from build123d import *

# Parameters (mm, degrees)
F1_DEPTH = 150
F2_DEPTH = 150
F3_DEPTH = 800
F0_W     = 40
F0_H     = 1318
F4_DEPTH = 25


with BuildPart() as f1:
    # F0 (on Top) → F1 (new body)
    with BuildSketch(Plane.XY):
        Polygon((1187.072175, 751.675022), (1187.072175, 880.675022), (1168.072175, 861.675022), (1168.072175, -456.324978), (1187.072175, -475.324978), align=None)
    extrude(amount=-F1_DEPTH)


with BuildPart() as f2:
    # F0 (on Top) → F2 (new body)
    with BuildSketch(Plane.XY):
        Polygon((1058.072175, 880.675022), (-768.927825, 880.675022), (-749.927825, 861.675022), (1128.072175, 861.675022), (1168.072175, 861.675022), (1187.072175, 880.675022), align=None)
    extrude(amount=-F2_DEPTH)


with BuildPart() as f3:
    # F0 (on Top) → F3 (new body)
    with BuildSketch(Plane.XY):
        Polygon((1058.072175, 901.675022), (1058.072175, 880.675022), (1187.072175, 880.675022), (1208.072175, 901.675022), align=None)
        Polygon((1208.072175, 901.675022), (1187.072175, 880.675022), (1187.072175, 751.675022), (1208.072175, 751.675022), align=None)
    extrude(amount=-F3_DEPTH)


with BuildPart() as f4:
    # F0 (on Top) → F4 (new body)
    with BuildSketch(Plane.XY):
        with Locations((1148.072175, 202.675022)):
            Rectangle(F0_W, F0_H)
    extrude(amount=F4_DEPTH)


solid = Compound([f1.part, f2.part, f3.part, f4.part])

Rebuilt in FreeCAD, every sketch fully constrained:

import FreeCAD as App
import Part
import Sketcher

V = App.Vector
Q = App.Units.Quantity

doc = App.newDocument("Part")
params = doc.addObject("Spreadsheet::Sheet", "Params")
for row, (alias, value) in enumerate([
    ("sketch1_height", "1318 mm"),
    ("sketch1_height2", "1356 mm"),
    ("pad1_length", "150 mm"),
    ("sketch2_width", "1918 mm"),
    ("sketch2_width2", "1956 mm"),
    ("pad2_length", "150 mm"),
    ("sketch3_width", "129 mm"),
    ("sketch3_width2", "21 mm"),
    ("pad3_length", "800 mm"),
    ("sketch4_width", "40 mm"),
    ("sketch4_height", "1318 mm"),
    ("pad4_length", "25 mm"),
], start=1):
    params.set(f"A{row}", alias)
    params.set(f"B{row}", "=" + value)
    params.setAlias(f"B{row}", alias)

body = doc.addObject("PartDesign::Body", "Body")

sketch1 = body.newObject("Sketcher::SketchObject", "Sketch")
sketch1.AttachmentSupport = (doc.getObject("XY_Plane"), [""])
sketch1.MapMode = "FlatFace"
sketch1.addGeometry([
    Part.LineSegment(V(1187, 881, 0), V(1168, 862, 0)),
    Part.LineSegment(V(1168, 862, 0), V(1168, -456, 0)),
    Part.LineSegment(V(1168, -456, 0), V(1187, -475, 0)),
    Part.LineSegment(V(1187, -475, 0), V(1187, 881, 0)),
], False)
sketch1.addConstraint([
    Sketcher.Constraint("Coincident", 0, 2, 1, 1),
    Sketcher.Constraint("Coincident", 1, 2, 2, 1),
    Sketcher.Constraint("Coincident", 2, 2, 3, 1),
    Sketcher.Constraint("Coincident", 3, 2, 0, 1),
    Sketcher.Constraint("Vertical", 1),
    Sketcher.Constraint("Vertical", 3),
    Sketcher.Constraint("Perpendicular", 0, 2),
    Sketcher.Constraint("Equal", 0, 2),
    Sketcher.Constraint("DistanceY", 1, 2, 1, 1, Q("1318 mm")),
    Sketcher.Constraint("DistanceY", 3, 1, 3, 2, Q("1356 mm")),
    Sketcher.Constraint("DistanceY", -1, 1, 0, 2, Q("861.675022 mm")),
    Sketcher.Constraint("DistanceX", -1, 1, 0, 2, Q("1168.072175 mm")),
])
sketch1.setExpression("Constraints[8]", "Params.sketch1_height")
sketch1.setExpression("Constraints[9]", "Params.sketch1_height2")
pad1 = body.newObject("PartDesign::Pad", "Pad")
pad1.Profile = sketch1
pad1.setExpression("Length", "Params.pad1_length")
pad1.Reversed = True
body2 = doc.addObject("PartDesign::Body", "Body001")

sketch2 = body2.newObject("Sketcher::SketchObject", "Sketch001")
sketch2.AttachmentSupport = (doc.getObject("XY_Plane001"), [""])
sketch2.MapMode = "FlatFace"
sketch2.addGeometry([
    Part.LineSegment(V(-769, 881, 0), V(-750, 862, 0)),
    Part.LineSegment(V(-750, 862, 0), V(1168, 862, 0)),
    Part.LineSegment(V(1168, 862, 0), V(1187, 881, 0)),
    Part.LineSegment(V(1187, 881, 0), V(-769, 881, 0)),
], False)
sketch2.addConstraint([
    Sketcher.Constraint("Coincident", 0, 2, 1, 1),
    Sketcher.Constraint("Coincident", 1, 2, 2, 1),
    Sketcher.Constraint("Coincident", 2, 2, 3, 1),
    Sketcher.Constraint("Coincident", 3, 2, 0, 1),
    Sketcher.Constraint("Horizontal", 1),
    Sketcher.Constraint("Horizontal", 3),
    Sketcher.Constraint("Perpendicular", 0, 2),
    Sketcher.Constraint("Equal", 0, 2),
    Sketcher.Constraint("DistanceX", 1, 1, 1, 2, Q("1918 mm")),
    Sketcher.Constraint("DistanceX", 3, 2, 3, 1, Q("1956 mm")),
    Sketcher.Constraint("DistanceY", -1, 1, 0, 2, Q("861.675022 mm")),
    Sketcher.Constraint("DistanceX", 0, 2, -1, 1, Q("749.927825 mm")),
])
sketch2.setExpression("Constraints[8]", "Params.sketch2_width")
sketch2.setExpression("Constraints[9]", "Params.sketch2_width2")
pad2 = body2.newObject("PartDesign::Pad", "Pad001")
pad2.Profile = sketch2
pad2.setExpression("Length", "Params.pad2_length")
pad2.Reversed = True
body3 = doc.addObject("PartDesign::Body", "Body002")

sketch3 = body3.newObject("Sketcher::SketchObject", "Sketch002")
sketch3.AttachmentSupport = (doc.getObject("XY_Plane002"), [""])
sketch3.MapMode = "FlatFace"
sketch3.addGeometry([
    Part.LineSegment(V(1058, 902, 0), V(1058, 881, 0)),
    Part.LineSegment(V(1058, 881, 0), V(1187, 881, 0)),
    Part.LineSegment(V(1187, 881, 0), V(1187, 752, 0)),
    Part.LineSegment(V(1187, 752, 0), V(1208, 752, 0)),
    Part.LineSegment(V(1208, 752, 0), V(1208, 902, 0)),
    Part.LineSegment(V(1208, 902, 0), V(1058, 902, 0)),
], False)
sketch3.addConstraint([
    Sketcher.Constraint("Coincident", 0, 2, 1, 1),
    Sketcher.Constraint("Coincident", 1, 2, 2, 1),
    Sketcher.Constraint("Coincident", 2, 2, 3, 1),
    Sketcher.Constraint("Coincident", 3, 2, 4, 1),
    Sketcher.Constraint("Coincident", 4, 2, 5, 1),
    Sketcher.Constraint("Coincident", 5, 2, 0, 1),
    Sketcher.Constraint("Vertical", 0),
    Sketcher.Constraint("Horizontal", 1),
    Sketcher.Constraint("Vertical", 2),
    Sketcher.Constraint("Horizontal", 3),
    Sketcher.Constraint("Vertical", 4),
    Sketcher.Constraint("Horizontal", 5),
    Sketcher.Constraint("Equal", 3, 0),
    Sketcher.Constraint("Equal", 1, 2),
    Sketcher.Constraint("DistanceX", 1, 1, 1, 2, Q("129 mm")),
    Sketcher.Constraint("DistanceX", 3, 1, 3, 2, Q("21 mm")),
    Sketcher.Constraint("DistanceY", -1, 1, 0, 2, Q("880.675022 mm")),
    Sketcher.Constraint("DistanceX", -1, 1, 0, 2, Q("1058.072175 mm")),
])
sketch3.setExpression("Constraints[14]", "Params.sketch3_width")
sketch3.setExpression("Constraints[15]", "Params.sketch3_width2")
pad3 = body3.newObject("PartDesign::Pad", "Pad002")
pad3.Profile = sketch3
pad3.setExpression("Length", "Params.pad3_length")
pad3.Reversed = True
body4 = doc.addObject("PartDesign::Body", "Body003")

sketch4 = body4.newObject("Sketcher::SketchObject", "Sketch003")
sketch4.AttachmentSupport = (doc.getObject("XY_Plane003"), [""])
sketch4.MapMode = "FlatFace"
sketch4.addGeometry([
    Part.LineSegment(V(1128, 862, 0), V(1128, -456, 0)),
    Part.LineSegment(V(1128, -456, 0), V(1168, -456, 0)),
    Part.LineSegment(V(1168, -456, 0), V(1168, 862, 0)),
    Part.LineSegment(V(1168, 862, 0), V(1128, 862, 0)),
], False)
sketch4.addConstraint([
    Sketcher.Constraint("Coincident", 0, 2, 1, 1),
    Sketcher.Constraint("Coincident", 1, 2, 2, 1),
    Sketcher.Constraint("Coincident", 2, 2, 3, 1),
    Sketcher.Constraint("Coincident", 3, 2, 0, 1),
    Sketcher.Constraint("Vertical", 0),
    Sketcher.Constraint("Horizontal", 1),
    Sketcher.Constraint("Vertical", 2),
    Sketcher.Constraint("Horizontal", 3),
    Sketcher.Constraint("DistanceX", 1, 1, 1, 2, Q("40 mm")),
    Sketcher.Constraint("DistanceY", 0, 2, 0, 1, Q("1318 mm")),
    Sketcher.Constraint("DistanceY", 0, 2, -1, 1, Q("456.324978 mm")),
    Sketcher.Constraint("DistanceX", -1, 1, 0, 2, Q("1128.072175 mm")),
])
sketch4.setExpression("Constraints[8]", "Params.sketch4_width")
sketch4.setExpression("Constraints[9]", "Params.sketch4_height")
pad4 = body4.newObject("PartDesign::Pad", "Pad003")
pad4.Profile = sketch4
pad4.setExpression("Length", "Params.pad4_length")

doc.recompute()
